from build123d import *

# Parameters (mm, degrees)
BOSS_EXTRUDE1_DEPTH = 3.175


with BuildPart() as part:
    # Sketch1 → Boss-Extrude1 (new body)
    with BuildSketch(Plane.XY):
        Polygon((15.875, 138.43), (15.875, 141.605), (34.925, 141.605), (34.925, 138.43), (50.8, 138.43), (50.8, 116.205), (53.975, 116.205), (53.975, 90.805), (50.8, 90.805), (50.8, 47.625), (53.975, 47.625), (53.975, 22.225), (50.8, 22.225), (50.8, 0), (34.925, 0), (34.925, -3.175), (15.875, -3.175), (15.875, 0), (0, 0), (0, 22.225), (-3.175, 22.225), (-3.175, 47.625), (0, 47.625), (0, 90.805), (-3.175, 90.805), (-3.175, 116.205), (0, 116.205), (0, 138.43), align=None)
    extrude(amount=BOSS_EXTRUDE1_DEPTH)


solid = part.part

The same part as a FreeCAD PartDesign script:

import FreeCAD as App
import Part
import Sketcher
Q = App.Units.Quantity


def add_polygon(sketch, points):
    """Adds a closed chain of lines whose ends are joined by coincident constraints."""
    first, n = sketch.GeometryCount, len(points)
    for a, b in zip(points, points[1:] + points[:1]):
        sketch.addGeometry(Part.LineSegment(App.Vector(*a, 0), App.Vector(*b, 0)), False)
    for i in range(n):
        sketch.addConstraint(Sketcher.Constraint("Coincident", first + i, 2, first + (i + 1) % n, 1))

doc = App.newDocument("Part")
params = doc.addObject("Spreadsheet::Sheet", "Params")
for row, (alias, value) in enumerate([
    ("sketch1_height", "1 in"),
    ("sketch1_height2", "1.7 in"),
    ("sketch1_width", "0.75 in"),
    ("pad1_length", "0.125 in"),
], start=1):
    params.set(f"A{row}", alias)
    params.set(f"B{row}", "=" + value)
    params.setAlias(f"B{row}", alias)

body = doc.addObject("PartDesign::Body", "Body")

sketch1 = doc.addObject("Sketcher::SketchObject", "Sketch")
body.addObject(sketch1)
sketch1.AttachmentSupport = (doc.XY_Plane, [""])
sketch1.MapMode = "FlatFace"
add_polygon(sketch1, [(15.875, 141.605), (15.875, 138.43), (0, 138.43), (0, 116.205), (-3.175, 116.205), (-3.175, 90.805), (0, 90.805), (0, 47.625), (-3.175, 47.625), (-3.175, 22.225), (0, 22.225), (0, 0), (15.875, 0), (15.875, -3.175), (34.925, -3.175), (34.925, 0), (50.8, 0), (50.8, 22.225), (53.975, 22.225), (53.975, 47.625), (50.8, 47.625), (50.8, 90.805), (53.975, 90.805), (53.975, 116.205), (50.8, 116.205), (50.8, 138.43), (34.925, 138.43), (34.925, 141.605)])
sketch1.addConstraint(Sketcher.Constraint("Vertical", 0))
sketch1.addConstraint(Sketcher.Constraint("Horizontal", 1))
sketch1.addConstraint(Sketcher.Constraint("Vertical", 2))
sketch1.addConstraint(Sketcher.Constraint("Horizontal", 3))
sketch1.addConstraint(Sketcher.Constraint("Vertical", 4))
sketch1.addConstraint(Sketcher.Constraint("Horizontal", 5))
sketch1.addConstraint(Sketcher.Constraint("Vertical", 6))
sketch1.addConstraint(Sketcher.Constraint("Horizontal", 7))
sketch1.addConstraint(Sketcher.Constraint("Vertical", 8))
sketch1.addConstraint(Sketcher.Constraint("Horizontal", 9))
sketch1.addConstraint(Sketcher.Constraint("Vertical", 10))
sketch1.addConstraint(Sketcher.Constraint("Horizontal", 11))
sketch1.addConstraint(Sketcher.Constraint("Vertical", 12))
sketch1.addConstraint(Sketcher.Constraint("Horizontal", 13))
sketch1.addConstraint(Sketcher.Constraint("Vertical", 14))
sketch1.addConstraint(Sketcher.Constraint("Horizontal", 15))
sketch1.addConstraint(Sketcher.Constraint("Vertical", 16))
sketch1.addConstraint(Sketcher.Constraint("Horizontal", 17))
sketch1.addConstraint(Sketcher.Constraint("Vertical", 18))
sketch1.addConstraint(Sketcher.Constraint("Horizontal", 19))
sketch1.addConstraint(Sketcher.Constraint("Vertical", 20))
sketch1.addConstraint(Sketcher.Constraint("Horizontal", 21))
sketch1.addConstraint(Sketcher.Constraint("Vertical", 22))
sketch1.addConstraint(Sketcher.Constraint("Horizontal", 23))
sketch1.addConstraint(Sketcher.Constraint("Vertical", 24))
sketch1.addConstraint(Sketcher.Constraint("Horizontal", 25))
sketch1.addConstraint(Sketcher.Constraint("Vertical", 26))
sketch1.addConstraint(Sketcher.Constraint("Horizontal", 27))
sketch1.addConstraint(Sketcher.Constraint("Coincident", 10, 2, -1, 1))
sketch1.addConstraint(Sketcher.Constraint("PointOnObject", 1, 2, -2))
sketch1.addConstraint(Sketcher.Constraint("PointOnObject", 5, 2, -2))
sketch1.addConstraint(Sketcher.Constraint("PointOnObject", 14, 2, -1))
sketch1.addConstraint(Sketcher.Constraint("Horizontal", 9, 2, 16, 2))
sketch1.addConstraint(Sketcher.Constraint("Horizontal", 7, 2, 18, 2))
sketch1.addConstraint(Sketcher.Constraint("Horizontal", 5, 2, 20, 2))
sketch1.addConstraint(Sketcher.Constraint("Horizontal", 3, 2, 22, 2))
sketch1.addConstraint(Sketcher.Constraint("Horizontal", 1, 2, 24, 2))
sketch1.addConstraint(Sketcher.Constraint("Vertical", 4, 2, 7, 2))
sketch1.addConstraint(Sketcher.Constraint("Vertical", 0, 2, 11, 2))
sketch1.addConstraint(Sketcher.Constraint("Vertical", 16, 2, 19, 2))
sketch1.addConstraint(Sketcher.Constraint("Vertical", 18, 2, 21, 2))
sketch1.addConstraint(Sketcher.Constraint("Vertical", 20, 2, 23, 2))
sketch1.addConstraint(Sketcher.Constraint("Vertical", 14, 2, 25, 2))
sketch1.addConstraint(Sketcher.Constraint("Equal", 11, 15))
sketch1.addConstraint(Sketcher.Constraint("Equal", 9, 17))
sketch1.addConstraint(Sketcher.Constraint("Equal", 23, 0))
sketch1.addConstraint(Sketcher.Constraint("Equal", 4, 8))
sketch1.addConstraint(Sketcher.Constraint("Equal", 2, 10))
sketch1.addConstraint(Sketcher.Constraint("Equal", 0, 12))
sketch1.addConstraint(Sketcher.Constraint("DistanceY", 4, 2, 4, 1, Q("1 in")))
sketch1.addConstraint(Sketcher.Constraint("DistanceY", 6, 2, 6, 1, Q("1.7 in")))
sketch1.addConstraint(Sketcher.Constraint("DistanceX", -1, 1, 15, 2, Q("2 in")))
sketch1.addConstraint(Sketcher.Constraint("DistanceY", 12, 2, 9, 2, Q("1 in")))
sketch1.addConstraint(Sketcher.Constraint("DistanceX", 13, 1, 13, 2, Q("0.75 in")))
sketch1.addConstraint(Sketcher.Constraint("DistanceX", 8, 2, 13, 2, Q("1.5 in")))
sketch1.setExpression("Constraints[77]", "Params.sketch1_height")
sketch1.setExpression("Constraints[78]", "Params.sketch1_height2")
sketch1.setExpression("Constraints[81]", "Params.sketch1_width")
pad1 = doc.addObject("PartDesign::Pad", "Pad")
body.addObject(pad1)
pad1.Profile = sketch1
pad1.setExpression("Length", "Params.pad1_length")

doc.recompute()
